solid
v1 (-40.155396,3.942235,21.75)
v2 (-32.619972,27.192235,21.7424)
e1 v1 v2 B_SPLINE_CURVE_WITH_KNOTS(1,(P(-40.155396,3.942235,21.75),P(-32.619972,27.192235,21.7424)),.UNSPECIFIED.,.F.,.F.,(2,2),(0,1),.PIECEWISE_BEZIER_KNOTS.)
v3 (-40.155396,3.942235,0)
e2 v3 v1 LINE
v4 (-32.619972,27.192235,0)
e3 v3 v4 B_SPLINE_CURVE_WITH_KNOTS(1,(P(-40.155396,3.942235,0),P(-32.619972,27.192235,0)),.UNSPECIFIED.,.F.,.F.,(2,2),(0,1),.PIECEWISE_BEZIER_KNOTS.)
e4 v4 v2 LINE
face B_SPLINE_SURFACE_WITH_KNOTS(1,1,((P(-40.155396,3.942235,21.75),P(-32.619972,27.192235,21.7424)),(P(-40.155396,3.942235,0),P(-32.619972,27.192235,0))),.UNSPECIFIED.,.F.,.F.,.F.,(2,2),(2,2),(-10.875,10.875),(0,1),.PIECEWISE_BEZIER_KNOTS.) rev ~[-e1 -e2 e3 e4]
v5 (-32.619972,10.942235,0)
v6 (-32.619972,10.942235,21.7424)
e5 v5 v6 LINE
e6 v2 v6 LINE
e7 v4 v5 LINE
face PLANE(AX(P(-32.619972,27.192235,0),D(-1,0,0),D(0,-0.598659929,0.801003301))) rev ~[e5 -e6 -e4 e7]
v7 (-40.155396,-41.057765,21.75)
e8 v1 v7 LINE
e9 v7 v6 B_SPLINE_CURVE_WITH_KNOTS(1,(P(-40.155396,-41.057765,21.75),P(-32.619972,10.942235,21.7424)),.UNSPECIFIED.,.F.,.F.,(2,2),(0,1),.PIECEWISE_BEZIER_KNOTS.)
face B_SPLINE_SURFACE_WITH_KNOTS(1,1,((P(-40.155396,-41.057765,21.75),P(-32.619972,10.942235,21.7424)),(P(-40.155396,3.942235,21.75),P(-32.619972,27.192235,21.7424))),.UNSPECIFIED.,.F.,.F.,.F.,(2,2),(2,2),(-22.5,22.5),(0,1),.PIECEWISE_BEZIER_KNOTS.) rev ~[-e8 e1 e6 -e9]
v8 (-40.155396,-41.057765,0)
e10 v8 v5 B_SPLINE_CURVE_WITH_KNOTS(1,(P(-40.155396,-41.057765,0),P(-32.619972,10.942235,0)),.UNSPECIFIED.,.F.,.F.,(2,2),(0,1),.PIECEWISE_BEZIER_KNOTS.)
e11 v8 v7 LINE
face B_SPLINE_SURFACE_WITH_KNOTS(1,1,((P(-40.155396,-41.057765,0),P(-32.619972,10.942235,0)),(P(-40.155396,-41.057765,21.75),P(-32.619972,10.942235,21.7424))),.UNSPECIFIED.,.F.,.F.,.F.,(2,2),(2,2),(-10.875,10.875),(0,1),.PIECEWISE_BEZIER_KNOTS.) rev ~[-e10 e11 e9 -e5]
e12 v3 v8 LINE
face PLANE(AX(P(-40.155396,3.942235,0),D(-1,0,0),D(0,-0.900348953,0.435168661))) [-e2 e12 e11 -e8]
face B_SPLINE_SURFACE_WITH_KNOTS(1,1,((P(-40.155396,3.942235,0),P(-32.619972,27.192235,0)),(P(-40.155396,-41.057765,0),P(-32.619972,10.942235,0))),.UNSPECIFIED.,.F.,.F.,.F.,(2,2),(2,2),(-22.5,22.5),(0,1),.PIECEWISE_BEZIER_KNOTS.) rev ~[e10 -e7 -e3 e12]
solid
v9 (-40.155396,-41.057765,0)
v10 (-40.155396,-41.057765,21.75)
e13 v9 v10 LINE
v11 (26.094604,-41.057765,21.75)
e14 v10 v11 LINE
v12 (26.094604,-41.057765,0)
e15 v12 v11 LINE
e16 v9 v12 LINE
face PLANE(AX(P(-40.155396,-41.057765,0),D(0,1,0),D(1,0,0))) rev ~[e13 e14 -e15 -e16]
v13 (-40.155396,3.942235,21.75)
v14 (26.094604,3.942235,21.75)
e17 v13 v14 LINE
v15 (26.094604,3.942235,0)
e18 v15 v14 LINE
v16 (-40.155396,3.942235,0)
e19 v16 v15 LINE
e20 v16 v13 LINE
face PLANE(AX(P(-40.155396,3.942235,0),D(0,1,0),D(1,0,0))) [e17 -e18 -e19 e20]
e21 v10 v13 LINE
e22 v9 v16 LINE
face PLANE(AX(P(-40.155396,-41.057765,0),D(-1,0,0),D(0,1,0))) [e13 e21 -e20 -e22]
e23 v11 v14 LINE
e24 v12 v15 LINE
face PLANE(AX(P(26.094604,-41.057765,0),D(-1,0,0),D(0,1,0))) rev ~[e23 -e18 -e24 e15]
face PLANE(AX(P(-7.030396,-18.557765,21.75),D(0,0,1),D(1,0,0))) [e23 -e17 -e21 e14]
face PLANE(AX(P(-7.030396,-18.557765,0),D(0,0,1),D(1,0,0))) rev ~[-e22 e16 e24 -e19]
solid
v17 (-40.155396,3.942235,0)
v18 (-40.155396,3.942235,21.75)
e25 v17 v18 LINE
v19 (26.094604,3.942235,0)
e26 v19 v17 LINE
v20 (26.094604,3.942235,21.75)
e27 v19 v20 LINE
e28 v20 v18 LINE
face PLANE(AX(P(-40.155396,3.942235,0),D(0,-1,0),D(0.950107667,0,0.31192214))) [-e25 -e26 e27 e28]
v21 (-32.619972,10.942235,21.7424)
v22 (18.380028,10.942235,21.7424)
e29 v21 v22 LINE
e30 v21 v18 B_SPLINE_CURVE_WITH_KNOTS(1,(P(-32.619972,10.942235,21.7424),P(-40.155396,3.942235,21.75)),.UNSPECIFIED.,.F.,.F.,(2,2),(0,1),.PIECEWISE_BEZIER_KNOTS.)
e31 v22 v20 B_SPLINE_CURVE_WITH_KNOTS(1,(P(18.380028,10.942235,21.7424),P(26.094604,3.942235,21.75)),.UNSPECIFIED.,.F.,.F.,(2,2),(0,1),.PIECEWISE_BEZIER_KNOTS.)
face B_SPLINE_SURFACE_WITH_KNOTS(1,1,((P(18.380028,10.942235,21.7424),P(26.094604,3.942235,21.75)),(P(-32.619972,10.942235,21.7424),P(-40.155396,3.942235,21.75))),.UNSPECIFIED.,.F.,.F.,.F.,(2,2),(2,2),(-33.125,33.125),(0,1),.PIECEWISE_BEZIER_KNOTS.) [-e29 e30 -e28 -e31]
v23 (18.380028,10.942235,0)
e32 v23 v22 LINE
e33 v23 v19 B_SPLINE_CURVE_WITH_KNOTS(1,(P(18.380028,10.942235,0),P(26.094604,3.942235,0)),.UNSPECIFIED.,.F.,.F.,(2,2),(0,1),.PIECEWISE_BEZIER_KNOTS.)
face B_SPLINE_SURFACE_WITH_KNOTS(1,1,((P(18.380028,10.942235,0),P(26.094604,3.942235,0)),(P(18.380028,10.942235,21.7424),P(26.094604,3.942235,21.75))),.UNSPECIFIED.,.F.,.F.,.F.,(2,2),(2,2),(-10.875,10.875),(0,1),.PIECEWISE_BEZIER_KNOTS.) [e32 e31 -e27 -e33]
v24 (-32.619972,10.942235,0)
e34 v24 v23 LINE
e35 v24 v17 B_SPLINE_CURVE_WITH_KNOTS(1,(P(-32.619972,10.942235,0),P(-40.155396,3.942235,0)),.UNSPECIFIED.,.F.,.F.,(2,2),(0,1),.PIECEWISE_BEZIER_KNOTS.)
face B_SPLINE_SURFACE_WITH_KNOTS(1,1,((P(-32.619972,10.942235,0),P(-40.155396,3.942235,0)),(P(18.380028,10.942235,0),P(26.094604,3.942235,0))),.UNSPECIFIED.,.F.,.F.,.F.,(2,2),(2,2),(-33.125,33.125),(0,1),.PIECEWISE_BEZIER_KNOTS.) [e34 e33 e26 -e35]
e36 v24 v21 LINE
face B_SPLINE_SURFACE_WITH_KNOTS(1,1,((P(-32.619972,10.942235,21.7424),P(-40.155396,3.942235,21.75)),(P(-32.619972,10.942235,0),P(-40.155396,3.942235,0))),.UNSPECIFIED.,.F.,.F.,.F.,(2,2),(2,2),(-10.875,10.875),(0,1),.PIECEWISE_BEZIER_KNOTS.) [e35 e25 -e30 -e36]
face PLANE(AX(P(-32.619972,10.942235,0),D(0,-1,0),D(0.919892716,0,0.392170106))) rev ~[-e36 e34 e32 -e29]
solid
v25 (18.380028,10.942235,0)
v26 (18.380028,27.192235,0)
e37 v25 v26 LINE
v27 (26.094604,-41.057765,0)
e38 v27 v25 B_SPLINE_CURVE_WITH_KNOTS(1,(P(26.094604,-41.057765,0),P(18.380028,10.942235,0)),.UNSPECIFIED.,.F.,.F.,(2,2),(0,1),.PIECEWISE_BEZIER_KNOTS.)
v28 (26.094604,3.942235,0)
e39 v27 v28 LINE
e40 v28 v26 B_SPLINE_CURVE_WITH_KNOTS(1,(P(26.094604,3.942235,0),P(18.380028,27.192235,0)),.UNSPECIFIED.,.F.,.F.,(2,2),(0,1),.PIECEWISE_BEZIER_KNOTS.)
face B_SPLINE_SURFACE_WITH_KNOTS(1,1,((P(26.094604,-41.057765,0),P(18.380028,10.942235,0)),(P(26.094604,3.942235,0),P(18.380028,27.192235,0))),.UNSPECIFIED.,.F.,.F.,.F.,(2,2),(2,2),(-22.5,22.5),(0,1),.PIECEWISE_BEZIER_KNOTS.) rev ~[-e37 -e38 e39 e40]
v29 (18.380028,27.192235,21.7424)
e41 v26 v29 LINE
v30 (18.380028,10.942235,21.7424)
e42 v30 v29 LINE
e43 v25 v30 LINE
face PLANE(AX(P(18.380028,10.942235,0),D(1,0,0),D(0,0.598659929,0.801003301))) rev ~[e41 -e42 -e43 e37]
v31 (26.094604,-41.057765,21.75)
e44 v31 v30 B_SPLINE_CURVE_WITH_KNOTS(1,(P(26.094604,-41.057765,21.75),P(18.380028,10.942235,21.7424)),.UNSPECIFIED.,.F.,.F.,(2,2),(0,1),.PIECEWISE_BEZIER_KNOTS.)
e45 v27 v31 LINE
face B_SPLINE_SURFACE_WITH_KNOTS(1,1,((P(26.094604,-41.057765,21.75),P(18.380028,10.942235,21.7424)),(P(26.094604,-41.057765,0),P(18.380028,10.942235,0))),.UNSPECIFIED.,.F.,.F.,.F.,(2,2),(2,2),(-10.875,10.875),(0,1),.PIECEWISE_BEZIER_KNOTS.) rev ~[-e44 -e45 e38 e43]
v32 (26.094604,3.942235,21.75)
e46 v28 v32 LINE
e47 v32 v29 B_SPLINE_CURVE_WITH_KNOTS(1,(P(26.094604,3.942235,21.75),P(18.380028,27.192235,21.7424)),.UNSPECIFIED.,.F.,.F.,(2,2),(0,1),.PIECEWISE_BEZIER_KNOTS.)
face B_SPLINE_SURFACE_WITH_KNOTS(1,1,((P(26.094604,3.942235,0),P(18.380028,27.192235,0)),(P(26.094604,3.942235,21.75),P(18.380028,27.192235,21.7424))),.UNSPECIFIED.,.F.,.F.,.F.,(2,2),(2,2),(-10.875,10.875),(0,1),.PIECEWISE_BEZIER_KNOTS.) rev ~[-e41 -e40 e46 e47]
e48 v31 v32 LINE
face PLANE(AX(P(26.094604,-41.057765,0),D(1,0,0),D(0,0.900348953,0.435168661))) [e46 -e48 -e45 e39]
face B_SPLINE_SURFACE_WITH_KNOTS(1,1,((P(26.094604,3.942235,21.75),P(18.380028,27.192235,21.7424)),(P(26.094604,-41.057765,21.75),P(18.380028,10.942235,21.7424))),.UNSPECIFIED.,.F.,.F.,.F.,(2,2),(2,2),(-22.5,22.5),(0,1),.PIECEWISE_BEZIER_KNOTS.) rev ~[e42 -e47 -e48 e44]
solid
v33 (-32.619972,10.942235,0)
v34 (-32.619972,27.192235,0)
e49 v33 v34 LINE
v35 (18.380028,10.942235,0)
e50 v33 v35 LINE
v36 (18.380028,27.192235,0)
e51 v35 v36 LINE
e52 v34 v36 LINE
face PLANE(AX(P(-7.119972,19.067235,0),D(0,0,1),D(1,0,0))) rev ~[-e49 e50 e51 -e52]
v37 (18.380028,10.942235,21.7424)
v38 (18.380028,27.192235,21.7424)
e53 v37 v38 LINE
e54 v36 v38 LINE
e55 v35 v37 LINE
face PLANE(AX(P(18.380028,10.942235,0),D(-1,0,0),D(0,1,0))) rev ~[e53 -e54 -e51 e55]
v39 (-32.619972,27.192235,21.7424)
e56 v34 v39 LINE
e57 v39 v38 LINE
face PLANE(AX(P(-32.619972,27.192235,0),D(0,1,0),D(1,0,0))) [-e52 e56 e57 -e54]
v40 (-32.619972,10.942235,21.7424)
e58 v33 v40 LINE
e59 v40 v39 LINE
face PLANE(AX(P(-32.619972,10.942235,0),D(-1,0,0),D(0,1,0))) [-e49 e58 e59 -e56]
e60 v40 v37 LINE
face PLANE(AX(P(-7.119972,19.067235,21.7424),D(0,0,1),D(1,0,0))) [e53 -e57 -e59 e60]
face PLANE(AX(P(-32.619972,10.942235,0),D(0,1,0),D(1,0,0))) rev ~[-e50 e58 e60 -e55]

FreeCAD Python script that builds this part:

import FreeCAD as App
import Part
import Sketcher
from FreeCAD import Vector
Q = App.Units.Quantity


def add_polygon(sketch, points):
    """Adds a closed chain of lines whose ends are joined by coincident constraints."""
    first, n = sketch.GeometryCount, len(points)
    for a, b in zip(points, points[1:] + points[:1]):
        sketch.addGeometry(Part.LineSegment(App.Vector(*a, 0), App.Vector(*b, 0)), False)
    for i in range(n):
        sketch.addConstraint(Sketcher.Constraint("Coincident", first + i, 2, first + (i + 1) % n, 1))

doc = App.newDocument("Part")
params = doc.addObject("Spreadsheet::Sheet", "Params")
for row, (alias, value) in enumerate([
    ("sketch1_height", "45 mm"),
    ("sketch1_width", "66.25 mm"),
    ("pad1_length", "21.75 mm"),
    ("sketch2_width", "51 mm"),
    ("sketch2_height", "16.25 mm"),
    ("pad2_length", "21.7424 mm"),
    ("sketch3_width", "45 mm"),
    ("sketch3_height", "21.75 mm"),
    ("sketch4_width", "16.25 mm"),
    ("sketch5_width", "45 mm"),
    ("sketch5_height", "21.75 mm"),
    ("sketch6_width", "16.25 mm"),
    ("sketch7_width", "51 mm"),
    ("sketch8_width", "66.25 mm"),
    ("sketch8_height", "21.75 mm"),
], start=1):
    params.set(f"A{row}", alias)
    params.set(f"B{row}", "=" + value)
    params.setAlias(f"B{row}", alias)

body = doc.addObject("PartDesign::Body", "Body")

# Sketch on XY plane
sketch1 = doc.addObject("Sketcher::SketchObject", "Sketch")
body.addObject(sketch1)
sketch1.AttachmentSupport = (doc.XY_Plane, [""])
sketch1.MapMode = "FlatFace"
add_polygon(sketch1, [(-40, 4), (-40, -41), (26, -41), (26, 4)])  # lines 0-3
sketch1.addConstraint([
    Sketcher.Constraint("Vertical", 0),
    Sketcher.Constraint("Horizontal", 1),
    Sketcher.Constraint("Vertical", 2),
    Sketcher.Constraint("Horizontal", 3),
    Sketcher.Constraint("DistanceY", 0, 2, 0, 1, Q("45 mm")),
    Sketcher.Constraint("DistanceX", 1, 1, 1, 2, Q("66.25 mm")),
    Sketcher.Constraint("DistanceX", 0, 2, -1, 1, Q("40.155396 mm")),
    Sketcher.Constraint("DistanceY", 0, 2, -1, 1, Q("41.057765 mm")),
])
sketch1.setExpression("Constraints[8]", "Params.sketch1_height")
sketch1.setExpression("Constraints[9]", "Params.sketch1_width")
pad1 = doc.addObject("PartDesign::Pad", "Pad")
body.addObject(pad1)
pad1.Profile = sketch1
pad1.setExpression("Length", "Params.pad1_length")
body2 = doc.addObject("PartDesign::Body", "Body001")

# Sketch on XY plane
sketch2 = doc.addObject("Sketcher::SketchObject", "Sketch001")
body2.addObject(sketch2)
sketch2.AttachmentSupport = (doc.getObject("XY_Plane001"), [""])
sketch2.MapMode = "FlatFace"
add_polygon(sketch2, [(-33, 27), (-33, 11), (18, 11), (18, 27)])  # lines 0-3
sketch2.addConstraint([
    Sketcher.Constraint("Vertical", 0),
    Sketcher.Constraint("Horizontal", 1),
    Sketcher.Constraint("Vertical", 2),
    Sketcher.Constraint("Horizontal", 3),
    Sketcher.Constraint("DistanceX", 1, 1, 1, 2, Q("51 mm")),
    Sketcher.Constraint("DistanceY", 0, 2, 0, 1, Q("16.25 mm")),
    Sketcher.Constraint("DistanceX", 0, 2, -1, 1, Q("32.619972 mm")),
    Sketcher.Constraint("DistanceY", -1, 1, 0, 2, Q("10.942235 mm")),
])
sketch2.setExpression("Constraints[8]", "Params.sketch2_width")
sketch2.setExpression("Constraints[9]", "Params.sketch2_height")
pad2 = doc.addObject("PartDesign::Pad", "Pad001")
body2.addObject(pad2)
pad2.Profile = sketch2
pad2.setExpression("Length", "Params.pad2_length")
body3 = doc.addObject("PartDesign::Body", "Body002")

# Sketch on YZ plane
sketch3 = doc.addObject("Sketcher::SketchObject", "Sketch002")
body3.addObject(sketch3)
sketch3.AttachmentSupport = (doc.getObject("YZ_Plane002"), [""])
sketch3.MapMode = "FlatFace"
sketch3.AttachmentOffset = App.Placement(Vector(0, 0, -40.155396), App.Rotation())
add_polygon(sketch3, [(4, 22), (4, 0), (-41, 0), (-41, 22)])  # lines 0-3
sketch3.addConstraint([
    Sketcher.Constraint("Vertical", 0),
    Sketcher.Constraint("Horizontal", 1),
    Sketcher.Constraint("Vertical", 2),
    Sketcher.Constraint("Horizontal", 3),
    Sketcher.Constraint("PointOnObject", 0, 2, -1),
    Sketcher.Constraint("DistanceX", 1, 2, 1, 1, Q("45 mm")),
    Sketcher.Constraint("DistanceY", 0, 2, 0, 1, Q("21.75 mm")),
    Sketcher.Constraint("DistanceX", -1, 1, 0, 2, Q("3.942235 mm")),
])
sketch3.setExpression("Constraints[9]", "Params.sketch3_width")
sketch3.setExpression("Constraints[10]", "Params.sketch3_height")

# Sketch on YZ plane
sketch4 = doc.addObject("Sketcher::SketchObject", "Sketch003")
body3.addObject(sketch4)
sketch4.AttachmentSupport = (doc.getObject("YZ_Plane002"), [""])
sketch4.MapMode = "FlatFace"
sketch4.AttachmentOffset = App.Placement(Vector(0, 0, -32.619972), App.Rotation())
add_polygon(sketch4, [(27, 22), (27, 0), (11, 0), (11, 22)])  # lines 0-3
sketch4.addConstraint([
    Sketcher.Constraint("Vertical", 0),
    Sketcher.Constraint("Horizontal", 1),
    Sketcher.Constraint("Vertical", 2),
    Sketcher.Constraint("Horizontal", 3),
    Sketcher.Constraint("PointOnObject", 0, 2, -1),
    Sketcher.Constraint("DistanceX", 1, 2, 1, 1, Q("16.25 mm")),
    Sketcher.Constraint("DistanceY", 0, 2, 0, 1, Q("21.7424 mm")),
    Sketcher.Constraint("DistanceX", -1, 1, 0, 2, Q("27.192235 mm")),
])
sketch4.setExpression("Constraints[9]", "Params.sketch4_width")

additiveloft = doc.addObject("PartDesign::AdditiveLoft", "AdditiveLoft")
body3.addObject(additiveloft)
additiveloft.Profile = sketch3
additiveloft.Sections = [sketch4]
body4 = doc.addObject("PartDesign::Body", "Body003")

# Sketch on YZ plane
sketch5 = doc.addObject("Sketcher::SketchObject", "Sketch004")
body4.addObject(sketch5)
sketch5.AttachmentSupport = (doc.getObject("YZ_Plane003"), [""])
sketch5.MapMode = "FlatFace"
sketch5.AttachmentOffset = App.Placement(Vector(0, 0, 26.094604), App.Rotation())
add_polygon(sketch5, [(-41, 22), (-41, 0), (4, 0), (4, 22)])  # lines 0-3
sketch5.addConstraint([
    Sketcher.Constraint("Vertical", 0),
    Sketcher.Constraint("Horizontal", 1),
    Sketcher.Constraint("Vertical", 2),
    Sketcher.Constraint("Horizontal", 3),
    Sketcher.Constraint("PointOnObject", 0, 2, -1),
    Sketcher.Constraint("DistanceX", 1, 1, 1, 2, Q("45 mm")),
    Sketcher.Constraint("DistanceY", 0, 2, 0, 1, Q("21.75 mm")),
    Sketcher.Constraint("DistanceX", 0, 2, -1, 1, Q("41.057765 mm")),
])
sketch5.setExpression("Constraints[9]", "Params.sketch5_width")
sketch5.setExpression("Constraints[10]", "Params.sketch5_height")

# Sketch on YZ plane
sketch6 = doc.addObject("Sketcher::SketchObject", "Sketch005")
body4.addObject(sketch6)
sketch6.AttachmentSupport = (doc.getObject("YZ_Plane003"), [""])
sketch6.MapMode = "FlatFace"
sketch6.AttachmentOffset = App.Placement(Vector(0, 0, 18.380028), App.Rotation())
add_polygon(sketch6, [(11, 22), (11, 0), (27, 0), (27, 22)])  # lines 0-3
sketch6.addConstraint([
    Sketcher.Constraint("Vertical", 0),
    Sketcher.Constraint("Horizontal", 1),
    Sketcher.Constraint("Vertical", 2),
    Sketcher.Constraint("Horizontal", 3),
    Sketcher.Constraint("PointOnObject", 0, 2, -1),
    Sketcher.Constraint("DistanceX", 1, 1, 1, 2, Q("16.25 mm")),
    Sketcher.Constraint("DistanceY", 0, 2, 0, 1, Q("21.7424 mm")),
    Sketcher.Constraint("DistanceX", -1, 1, 0, 2, Q("10.942235 mm")),
])
sketch6.setExpression("Constraints[9]", "Params.sketch6_width")

additiveloft2 = doc.addObject("PartDesign::AdditiveLoft", "AdditiveLoft001")
body4.addObject(additiveloft2)
additiveloft2.Profile = sketch5
additiveloft2.Sections = [sketch6]
body5 = doc.addObject("PartDesign::Body", "Body004")

# Sketch on XZ plane
sketch7 = doc.addObject("Sketcher::SketchObject", "Sketch006")
body5.addObject(sketch7)
sketch7.AttachmentSupport = (doc.getObject("XZ_Plane004"), [""])
sketch7.MapMode = "FlatFace"
sketch7.AttachmentOffset = App.Placement(Vector(0, 0, -10.942235), App.Rotation())
add_polygon(sketch7, [(-33, 22), (-33, 0), (18, 0), (18, 22)])  # lines 0-3
sketch7.addConstraint([
    Sketcher.Constraint("Vertical", 0),
    Sketcher.Constraint("Horizontal", 1),
    Sketcher.Constraint("Vertical", 2),
    Sketcher.Constraint("Horizontal", 3),
    Sketcher.Constraint("PointOnObject", 0, 2, -1),
    Sketcher.Constraint("DistanceX", 1, 1, 1, 2, Q("51 mm")),
    Sketcher.Constraint("DistanceY", 0, 2, 0, 1, Q("21.7424 mm")),
    Sketcher.Constraint("DistanceX", 0, 2, -1, 1, Q("32.619972 mm")),
])
sketch7.setExpression("Constraints[9]", "Params.sketch7_width")

# Sketch on XZ plane
sketch8 = doc.addObject("Sketcher::SketchObject", "Sketch007")
body5.addObject(sketch8)
sketch8.AttachmentSupport = (doc.getObject("XZ_Plane004"), [""])
sketch8.MapMode = "FlatFace"
sketch8.AttachmentOffset = App.Placement(Vector(0, 0, -3.942235), App.Rotation())
add_polygon(sketch8, [(26, 22), (26, 0), (-40, 0), (-40, 22)])  # lines 0-3
sketch8.addConstraint([
    Sketcher.Constraint("Vertical", 0),
    Sketcher.Constraint("Horizontal", 1),
    Sketcher.Constraint("Vertical", 2),
    Sketcher.Constraint("Horizontal", 3),
    Sketcher.Constraint("PointOnObject", 0, 2, -1),
    Sketcher.Constraint("DistanceX", 1, 2, 1, 1, Q("66.25 mm")),
    Sketcher.Constraint("DistanceY", 0, 2, 0, 1, Q("21.75 mm")),
    Sketcher.Constraint("DistanceX", -1, 1, 0, 2, Q("26.094604 mm")),
])
sketch8.setExpression("Constraints[9]", "Params.sketch8_width")
sketch8.setExpression("Constraints[10]", "Params.sketch8_height")

additiveloft3 = doc.addObject("PartDesign::AdditiveLoft", "AdditiveLoft002")
body5.addObject(additiveloft3)
additiveloft3.Profile = sketch7
additiveloft3.Sections = [sketch8]

doc.recompute()
